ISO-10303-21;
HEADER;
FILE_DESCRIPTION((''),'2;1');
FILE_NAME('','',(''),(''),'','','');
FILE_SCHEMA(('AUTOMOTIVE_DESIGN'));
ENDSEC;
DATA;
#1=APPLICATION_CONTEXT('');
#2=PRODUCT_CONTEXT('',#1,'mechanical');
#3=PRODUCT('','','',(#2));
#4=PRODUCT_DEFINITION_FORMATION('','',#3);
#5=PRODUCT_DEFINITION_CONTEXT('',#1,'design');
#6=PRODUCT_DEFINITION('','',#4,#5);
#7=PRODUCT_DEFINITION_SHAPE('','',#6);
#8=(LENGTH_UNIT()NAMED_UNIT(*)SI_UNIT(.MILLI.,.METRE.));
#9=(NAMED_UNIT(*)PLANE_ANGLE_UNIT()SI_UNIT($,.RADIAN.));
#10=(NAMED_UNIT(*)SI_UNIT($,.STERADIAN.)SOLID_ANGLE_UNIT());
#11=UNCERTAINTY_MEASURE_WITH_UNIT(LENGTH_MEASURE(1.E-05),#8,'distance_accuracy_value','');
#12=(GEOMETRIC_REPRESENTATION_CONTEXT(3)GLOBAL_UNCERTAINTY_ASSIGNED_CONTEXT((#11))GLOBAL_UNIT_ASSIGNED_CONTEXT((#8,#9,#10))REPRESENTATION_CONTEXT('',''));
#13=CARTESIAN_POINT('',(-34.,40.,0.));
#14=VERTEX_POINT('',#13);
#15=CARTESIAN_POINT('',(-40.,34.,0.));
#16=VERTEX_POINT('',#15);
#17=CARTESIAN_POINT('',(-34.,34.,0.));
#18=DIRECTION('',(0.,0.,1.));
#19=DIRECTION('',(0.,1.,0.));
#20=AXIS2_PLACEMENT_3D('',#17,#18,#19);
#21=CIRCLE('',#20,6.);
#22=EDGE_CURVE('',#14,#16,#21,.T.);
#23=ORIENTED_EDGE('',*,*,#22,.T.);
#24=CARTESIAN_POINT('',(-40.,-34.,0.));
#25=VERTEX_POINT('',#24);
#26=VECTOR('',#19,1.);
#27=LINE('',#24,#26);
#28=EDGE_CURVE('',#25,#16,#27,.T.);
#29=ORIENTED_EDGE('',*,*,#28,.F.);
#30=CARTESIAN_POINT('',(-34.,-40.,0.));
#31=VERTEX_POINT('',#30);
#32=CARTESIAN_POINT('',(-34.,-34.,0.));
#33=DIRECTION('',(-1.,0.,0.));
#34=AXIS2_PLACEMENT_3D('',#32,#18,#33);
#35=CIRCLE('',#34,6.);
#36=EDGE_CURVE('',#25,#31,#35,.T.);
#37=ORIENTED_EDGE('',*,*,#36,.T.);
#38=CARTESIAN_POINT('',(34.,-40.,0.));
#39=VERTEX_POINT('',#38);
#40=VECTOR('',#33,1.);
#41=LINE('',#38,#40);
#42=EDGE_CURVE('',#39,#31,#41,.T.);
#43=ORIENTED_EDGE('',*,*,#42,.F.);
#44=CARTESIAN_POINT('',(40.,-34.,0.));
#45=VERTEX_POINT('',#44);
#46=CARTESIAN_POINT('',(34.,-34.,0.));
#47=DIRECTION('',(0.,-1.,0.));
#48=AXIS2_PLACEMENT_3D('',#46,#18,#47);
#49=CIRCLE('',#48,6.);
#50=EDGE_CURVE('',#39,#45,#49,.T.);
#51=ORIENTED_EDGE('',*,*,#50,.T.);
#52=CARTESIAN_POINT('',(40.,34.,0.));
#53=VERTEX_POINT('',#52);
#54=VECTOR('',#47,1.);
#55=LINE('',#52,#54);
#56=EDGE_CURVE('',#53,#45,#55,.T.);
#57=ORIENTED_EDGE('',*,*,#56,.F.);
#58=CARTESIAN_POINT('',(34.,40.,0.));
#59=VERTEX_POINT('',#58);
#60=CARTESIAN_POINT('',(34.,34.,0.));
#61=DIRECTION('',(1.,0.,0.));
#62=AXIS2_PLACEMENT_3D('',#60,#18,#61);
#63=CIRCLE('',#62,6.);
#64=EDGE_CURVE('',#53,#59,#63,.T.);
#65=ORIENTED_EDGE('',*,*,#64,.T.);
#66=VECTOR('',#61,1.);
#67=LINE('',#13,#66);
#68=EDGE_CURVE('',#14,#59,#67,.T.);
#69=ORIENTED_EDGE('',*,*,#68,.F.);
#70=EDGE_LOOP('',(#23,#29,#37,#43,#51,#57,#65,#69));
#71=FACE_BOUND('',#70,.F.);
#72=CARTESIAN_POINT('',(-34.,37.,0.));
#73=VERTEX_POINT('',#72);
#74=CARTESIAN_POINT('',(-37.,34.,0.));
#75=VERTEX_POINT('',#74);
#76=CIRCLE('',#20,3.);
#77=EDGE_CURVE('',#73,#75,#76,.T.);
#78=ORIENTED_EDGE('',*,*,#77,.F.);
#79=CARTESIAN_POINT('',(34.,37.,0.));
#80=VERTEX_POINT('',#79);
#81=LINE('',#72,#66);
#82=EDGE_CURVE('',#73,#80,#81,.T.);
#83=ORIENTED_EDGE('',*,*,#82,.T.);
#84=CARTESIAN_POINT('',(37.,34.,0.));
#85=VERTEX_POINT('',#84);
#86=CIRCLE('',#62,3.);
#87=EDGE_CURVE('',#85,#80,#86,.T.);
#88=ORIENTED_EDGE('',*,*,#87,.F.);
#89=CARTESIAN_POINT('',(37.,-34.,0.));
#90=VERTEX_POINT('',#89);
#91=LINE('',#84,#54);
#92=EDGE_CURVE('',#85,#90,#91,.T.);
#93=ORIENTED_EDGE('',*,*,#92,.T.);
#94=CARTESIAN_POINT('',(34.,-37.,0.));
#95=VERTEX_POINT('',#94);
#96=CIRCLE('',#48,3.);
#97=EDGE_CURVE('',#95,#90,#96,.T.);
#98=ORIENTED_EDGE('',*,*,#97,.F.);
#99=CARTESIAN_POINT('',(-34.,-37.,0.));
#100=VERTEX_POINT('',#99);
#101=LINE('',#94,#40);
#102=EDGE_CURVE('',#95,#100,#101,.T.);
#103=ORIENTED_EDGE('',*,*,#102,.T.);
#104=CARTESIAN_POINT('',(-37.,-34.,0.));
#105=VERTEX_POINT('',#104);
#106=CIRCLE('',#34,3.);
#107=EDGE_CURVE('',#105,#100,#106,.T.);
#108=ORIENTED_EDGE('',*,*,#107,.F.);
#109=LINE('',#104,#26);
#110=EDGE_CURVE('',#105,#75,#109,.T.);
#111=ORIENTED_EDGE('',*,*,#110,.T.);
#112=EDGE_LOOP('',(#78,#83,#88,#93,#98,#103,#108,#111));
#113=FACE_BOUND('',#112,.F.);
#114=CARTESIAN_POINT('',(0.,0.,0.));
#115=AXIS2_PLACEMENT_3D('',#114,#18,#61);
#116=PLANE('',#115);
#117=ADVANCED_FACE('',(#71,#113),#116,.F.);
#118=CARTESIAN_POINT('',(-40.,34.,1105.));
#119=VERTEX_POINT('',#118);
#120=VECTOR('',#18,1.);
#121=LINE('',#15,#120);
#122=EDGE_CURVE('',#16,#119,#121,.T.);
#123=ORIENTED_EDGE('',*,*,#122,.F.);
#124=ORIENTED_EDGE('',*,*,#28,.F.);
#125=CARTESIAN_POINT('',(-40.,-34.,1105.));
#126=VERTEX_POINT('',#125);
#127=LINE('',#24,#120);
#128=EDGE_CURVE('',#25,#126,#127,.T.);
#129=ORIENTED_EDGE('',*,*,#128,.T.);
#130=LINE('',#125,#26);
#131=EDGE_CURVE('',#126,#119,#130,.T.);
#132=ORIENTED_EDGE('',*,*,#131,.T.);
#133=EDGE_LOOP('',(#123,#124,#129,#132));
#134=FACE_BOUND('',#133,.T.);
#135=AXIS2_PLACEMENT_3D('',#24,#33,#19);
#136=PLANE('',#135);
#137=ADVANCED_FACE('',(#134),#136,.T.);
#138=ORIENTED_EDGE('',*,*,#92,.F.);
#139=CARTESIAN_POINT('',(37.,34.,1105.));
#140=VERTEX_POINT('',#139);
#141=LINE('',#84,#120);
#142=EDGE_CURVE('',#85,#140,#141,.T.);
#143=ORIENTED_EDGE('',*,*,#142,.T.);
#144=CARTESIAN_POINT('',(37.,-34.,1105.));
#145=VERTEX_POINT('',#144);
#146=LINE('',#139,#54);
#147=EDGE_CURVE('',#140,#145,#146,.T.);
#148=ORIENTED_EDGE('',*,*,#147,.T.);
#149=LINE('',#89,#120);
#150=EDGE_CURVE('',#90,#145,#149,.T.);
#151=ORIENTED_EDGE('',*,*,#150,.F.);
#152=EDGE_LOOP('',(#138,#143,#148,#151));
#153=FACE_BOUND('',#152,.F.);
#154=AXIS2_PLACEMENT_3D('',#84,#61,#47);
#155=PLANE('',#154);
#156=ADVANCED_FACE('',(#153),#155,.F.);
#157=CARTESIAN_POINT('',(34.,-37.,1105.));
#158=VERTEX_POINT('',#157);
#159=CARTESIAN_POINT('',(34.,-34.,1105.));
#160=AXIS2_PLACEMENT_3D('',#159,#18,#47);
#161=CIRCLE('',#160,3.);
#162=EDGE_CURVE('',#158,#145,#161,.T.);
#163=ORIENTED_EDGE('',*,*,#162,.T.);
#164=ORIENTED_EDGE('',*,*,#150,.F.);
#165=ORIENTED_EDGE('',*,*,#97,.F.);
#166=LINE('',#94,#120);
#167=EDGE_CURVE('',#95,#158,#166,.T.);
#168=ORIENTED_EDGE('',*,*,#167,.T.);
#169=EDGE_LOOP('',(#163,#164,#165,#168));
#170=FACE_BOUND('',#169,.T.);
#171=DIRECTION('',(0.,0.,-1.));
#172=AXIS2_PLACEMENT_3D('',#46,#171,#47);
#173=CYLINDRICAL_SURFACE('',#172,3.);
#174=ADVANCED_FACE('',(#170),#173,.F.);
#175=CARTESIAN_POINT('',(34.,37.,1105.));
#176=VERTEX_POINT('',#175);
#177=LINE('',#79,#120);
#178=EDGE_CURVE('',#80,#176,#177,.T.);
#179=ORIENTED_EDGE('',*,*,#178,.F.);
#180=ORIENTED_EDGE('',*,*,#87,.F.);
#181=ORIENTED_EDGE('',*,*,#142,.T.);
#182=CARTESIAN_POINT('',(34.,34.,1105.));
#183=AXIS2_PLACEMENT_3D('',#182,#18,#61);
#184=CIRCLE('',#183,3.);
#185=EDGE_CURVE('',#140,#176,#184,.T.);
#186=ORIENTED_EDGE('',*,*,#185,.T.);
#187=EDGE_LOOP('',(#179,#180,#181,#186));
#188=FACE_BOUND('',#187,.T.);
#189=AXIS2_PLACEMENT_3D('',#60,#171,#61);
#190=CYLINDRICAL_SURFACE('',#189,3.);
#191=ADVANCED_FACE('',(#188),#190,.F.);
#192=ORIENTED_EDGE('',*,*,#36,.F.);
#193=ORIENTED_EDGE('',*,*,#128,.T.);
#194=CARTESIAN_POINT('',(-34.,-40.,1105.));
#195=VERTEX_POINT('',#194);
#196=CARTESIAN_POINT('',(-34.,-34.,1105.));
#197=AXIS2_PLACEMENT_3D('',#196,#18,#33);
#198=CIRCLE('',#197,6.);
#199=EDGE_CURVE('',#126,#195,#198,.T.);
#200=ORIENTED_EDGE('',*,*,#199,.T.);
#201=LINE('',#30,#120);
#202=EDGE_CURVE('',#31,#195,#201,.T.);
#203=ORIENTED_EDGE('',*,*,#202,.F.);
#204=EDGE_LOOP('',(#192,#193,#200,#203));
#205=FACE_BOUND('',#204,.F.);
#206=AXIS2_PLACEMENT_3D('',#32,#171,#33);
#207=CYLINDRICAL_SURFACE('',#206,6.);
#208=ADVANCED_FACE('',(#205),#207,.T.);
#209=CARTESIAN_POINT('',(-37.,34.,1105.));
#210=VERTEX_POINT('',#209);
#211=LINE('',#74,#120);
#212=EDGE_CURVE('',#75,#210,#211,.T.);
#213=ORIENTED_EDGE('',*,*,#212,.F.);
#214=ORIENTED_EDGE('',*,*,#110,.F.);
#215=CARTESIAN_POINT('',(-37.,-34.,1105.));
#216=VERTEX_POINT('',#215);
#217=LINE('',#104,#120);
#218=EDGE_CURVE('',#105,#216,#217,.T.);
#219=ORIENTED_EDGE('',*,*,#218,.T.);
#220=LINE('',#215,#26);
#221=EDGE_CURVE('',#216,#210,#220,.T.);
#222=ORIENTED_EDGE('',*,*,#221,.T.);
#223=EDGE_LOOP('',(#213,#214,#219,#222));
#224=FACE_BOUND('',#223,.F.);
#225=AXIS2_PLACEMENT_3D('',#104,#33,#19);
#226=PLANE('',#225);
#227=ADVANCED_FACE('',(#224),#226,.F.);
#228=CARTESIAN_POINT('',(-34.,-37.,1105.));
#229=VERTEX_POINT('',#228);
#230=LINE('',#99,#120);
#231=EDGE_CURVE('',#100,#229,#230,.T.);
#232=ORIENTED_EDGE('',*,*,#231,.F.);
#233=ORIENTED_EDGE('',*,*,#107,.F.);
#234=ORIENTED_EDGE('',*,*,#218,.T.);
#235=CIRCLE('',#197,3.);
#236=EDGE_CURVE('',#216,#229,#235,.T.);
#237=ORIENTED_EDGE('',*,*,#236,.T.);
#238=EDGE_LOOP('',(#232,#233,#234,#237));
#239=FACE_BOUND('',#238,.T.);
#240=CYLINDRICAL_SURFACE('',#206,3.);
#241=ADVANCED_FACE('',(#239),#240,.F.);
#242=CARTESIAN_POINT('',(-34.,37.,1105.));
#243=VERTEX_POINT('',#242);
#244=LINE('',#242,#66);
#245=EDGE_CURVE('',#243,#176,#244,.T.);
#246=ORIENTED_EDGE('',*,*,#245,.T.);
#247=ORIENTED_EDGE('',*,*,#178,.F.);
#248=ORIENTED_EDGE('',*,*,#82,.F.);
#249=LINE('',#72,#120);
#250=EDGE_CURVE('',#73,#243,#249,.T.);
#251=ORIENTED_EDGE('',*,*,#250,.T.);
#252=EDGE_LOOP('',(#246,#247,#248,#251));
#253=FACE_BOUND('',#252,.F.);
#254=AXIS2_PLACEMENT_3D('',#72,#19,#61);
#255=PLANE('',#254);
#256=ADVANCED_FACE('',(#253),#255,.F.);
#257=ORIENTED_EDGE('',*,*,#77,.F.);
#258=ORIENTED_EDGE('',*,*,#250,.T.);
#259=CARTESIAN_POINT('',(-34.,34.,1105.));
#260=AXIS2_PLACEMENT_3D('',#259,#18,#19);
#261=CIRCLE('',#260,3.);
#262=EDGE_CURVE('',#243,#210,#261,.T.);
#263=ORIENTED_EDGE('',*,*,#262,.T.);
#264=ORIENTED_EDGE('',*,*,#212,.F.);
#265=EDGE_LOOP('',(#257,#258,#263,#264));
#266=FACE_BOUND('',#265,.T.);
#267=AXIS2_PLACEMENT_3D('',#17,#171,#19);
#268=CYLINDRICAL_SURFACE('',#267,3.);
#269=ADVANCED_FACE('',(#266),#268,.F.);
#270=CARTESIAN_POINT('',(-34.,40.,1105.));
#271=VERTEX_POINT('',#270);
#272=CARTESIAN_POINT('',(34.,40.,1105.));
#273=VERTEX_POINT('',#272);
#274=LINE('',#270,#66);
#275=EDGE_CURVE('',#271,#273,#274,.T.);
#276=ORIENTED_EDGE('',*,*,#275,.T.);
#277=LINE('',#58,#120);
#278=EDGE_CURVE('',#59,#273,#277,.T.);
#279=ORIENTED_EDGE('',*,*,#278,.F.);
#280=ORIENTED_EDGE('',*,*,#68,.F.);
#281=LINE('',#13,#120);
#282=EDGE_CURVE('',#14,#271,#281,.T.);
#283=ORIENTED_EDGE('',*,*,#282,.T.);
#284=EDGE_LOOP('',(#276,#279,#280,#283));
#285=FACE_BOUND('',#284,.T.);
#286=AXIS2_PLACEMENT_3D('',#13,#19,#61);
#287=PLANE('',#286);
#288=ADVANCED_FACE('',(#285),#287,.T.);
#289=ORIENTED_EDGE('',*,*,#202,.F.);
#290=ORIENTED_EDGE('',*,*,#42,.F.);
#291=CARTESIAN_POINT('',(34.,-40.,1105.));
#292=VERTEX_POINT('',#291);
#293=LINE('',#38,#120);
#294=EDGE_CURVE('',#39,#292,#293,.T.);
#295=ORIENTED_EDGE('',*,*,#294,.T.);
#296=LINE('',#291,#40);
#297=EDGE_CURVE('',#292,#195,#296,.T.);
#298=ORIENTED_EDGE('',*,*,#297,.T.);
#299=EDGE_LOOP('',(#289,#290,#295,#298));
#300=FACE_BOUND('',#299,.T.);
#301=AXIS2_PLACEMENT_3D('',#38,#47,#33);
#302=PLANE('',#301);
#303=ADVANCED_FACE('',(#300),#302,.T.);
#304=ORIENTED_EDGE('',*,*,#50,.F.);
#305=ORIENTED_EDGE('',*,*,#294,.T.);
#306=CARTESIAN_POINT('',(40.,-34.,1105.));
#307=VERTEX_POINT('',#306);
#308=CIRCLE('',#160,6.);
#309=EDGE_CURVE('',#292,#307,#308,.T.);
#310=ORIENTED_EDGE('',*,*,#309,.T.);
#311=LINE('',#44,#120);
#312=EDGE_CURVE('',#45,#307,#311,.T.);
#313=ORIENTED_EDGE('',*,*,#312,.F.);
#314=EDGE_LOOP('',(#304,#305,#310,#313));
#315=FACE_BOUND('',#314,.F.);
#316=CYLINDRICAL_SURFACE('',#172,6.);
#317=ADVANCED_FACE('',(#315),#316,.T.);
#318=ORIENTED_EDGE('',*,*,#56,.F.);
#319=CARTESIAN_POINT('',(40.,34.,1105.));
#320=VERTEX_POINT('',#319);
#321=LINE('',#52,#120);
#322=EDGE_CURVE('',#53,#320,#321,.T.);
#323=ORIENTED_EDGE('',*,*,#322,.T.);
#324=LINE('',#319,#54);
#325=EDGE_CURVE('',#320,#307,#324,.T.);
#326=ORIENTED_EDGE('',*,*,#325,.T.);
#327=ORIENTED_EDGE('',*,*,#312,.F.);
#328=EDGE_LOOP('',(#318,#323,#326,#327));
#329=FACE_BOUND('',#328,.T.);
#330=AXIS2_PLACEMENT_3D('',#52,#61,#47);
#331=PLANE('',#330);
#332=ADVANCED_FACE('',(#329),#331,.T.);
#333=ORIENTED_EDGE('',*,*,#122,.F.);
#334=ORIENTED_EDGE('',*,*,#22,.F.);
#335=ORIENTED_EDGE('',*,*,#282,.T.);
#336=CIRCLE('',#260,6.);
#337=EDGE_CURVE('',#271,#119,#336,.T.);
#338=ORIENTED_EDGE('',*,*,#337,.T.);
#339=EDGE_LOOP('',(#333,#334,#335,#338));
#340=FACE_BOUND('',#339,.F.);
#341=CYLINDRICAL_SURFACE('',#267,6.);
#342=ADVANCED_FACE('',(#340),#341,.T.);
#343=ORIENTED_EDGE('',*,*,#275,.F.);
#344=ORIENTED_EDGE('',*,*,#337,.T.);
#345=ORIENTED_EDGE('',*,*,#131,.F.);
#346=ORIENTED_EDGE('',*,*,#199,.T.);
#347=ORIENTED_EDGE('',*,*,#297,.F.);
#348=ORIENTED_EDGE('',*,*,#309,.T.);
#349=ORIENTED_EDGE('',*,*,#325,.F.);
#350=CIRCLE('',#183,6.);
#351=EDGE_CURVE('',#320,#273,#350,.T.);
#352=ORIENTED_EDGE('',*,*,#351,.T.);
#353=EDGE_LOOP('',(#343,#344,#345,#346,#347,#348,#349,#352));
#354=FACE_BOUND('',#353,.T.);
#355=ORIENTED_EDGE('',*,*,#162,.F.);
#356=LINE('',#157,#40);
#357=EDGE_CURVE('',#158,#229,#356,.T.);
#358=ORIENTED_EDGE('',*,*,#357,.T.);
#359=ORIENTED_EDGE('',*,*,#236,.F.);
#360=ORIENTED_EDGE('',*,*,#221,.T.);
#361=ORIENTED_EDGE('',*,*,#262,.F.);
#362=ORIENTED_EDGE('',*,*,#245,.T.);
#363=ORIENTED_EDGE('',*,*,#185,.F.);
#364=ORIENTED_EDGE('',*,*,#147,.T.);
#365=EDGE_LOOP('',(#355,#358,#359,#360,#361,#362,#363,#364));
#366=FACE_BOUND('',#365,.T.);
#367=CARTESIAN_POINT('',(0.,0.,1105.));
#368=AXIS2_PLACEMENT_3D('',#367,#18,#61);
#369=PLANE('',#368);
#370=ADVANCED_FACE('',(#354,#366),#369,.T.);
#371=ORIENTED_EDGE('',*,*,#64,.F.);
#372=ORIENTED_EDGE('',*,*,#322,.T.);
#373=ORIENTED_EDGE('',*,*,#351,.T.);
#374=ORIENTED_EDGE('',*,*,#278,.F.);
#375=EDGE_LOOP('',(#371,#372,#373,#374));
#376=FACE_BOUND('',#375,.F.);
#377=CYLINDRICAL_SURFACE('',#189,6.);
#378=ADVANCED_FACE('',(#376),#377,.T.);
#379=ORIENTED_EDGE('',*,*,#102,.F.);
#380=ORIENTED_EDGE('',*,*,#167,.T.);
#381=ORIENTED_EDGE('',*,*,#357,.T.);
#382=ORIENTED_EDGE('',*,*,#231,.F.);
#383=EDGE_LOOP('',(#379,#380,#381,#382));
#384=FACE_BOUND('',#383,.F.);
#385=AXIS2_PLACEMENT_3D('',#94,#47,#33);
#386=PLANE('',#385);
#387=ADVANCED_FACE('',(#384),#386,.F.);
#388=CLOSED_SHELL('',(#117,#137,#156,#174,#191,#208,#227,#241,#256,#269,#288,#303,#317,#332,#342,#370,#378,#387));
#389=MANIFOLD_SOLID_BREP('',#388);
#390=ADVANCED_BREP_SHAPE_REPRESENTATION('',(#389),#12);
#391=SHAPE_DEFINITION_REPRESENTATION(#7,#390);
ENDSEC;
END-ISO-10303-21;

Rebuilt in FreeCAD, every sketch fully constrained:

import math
import FreeCAD as App
import Part
import Sketcher

V = App.Vector

doc = App.newDocument("Part")
params = doc.addObject("Spreadsheet::Sheet", "Params")
for row, (alias, value) in enumerate([
    ("sketch1_radius", "6 mm"),
    ("sketch1_radius2", "3 mm"),
    ("pad1_length", "1105 mm"),
], start=1):
    params.set(f"A{row}", alias)
    params.set(f"B{row}", "=" + value)
    params.setAlias(f"B{row}", alias)

body = doc.addObject("PartDesign::Body", "Body")

# Sketch on XY plane
sketch1 = doc.addObject("Sketcher::SketchObject", "Sketch")
body.addObject(sketch1)
sketch1.AttachmentSupport = (doc.XY_Plane, [""])
sketch1.MapMode = "FlatFace"
sketch1.addGeometry([
    Part.LineSegment(V(-40, 34, 0), V(-40, -34, 0)),  # 0
    Part.ArcOfCircle(Part.Circle(V(-34, -34, 0), V(0, 0, 1), 6), math.radians(180), math.radians(270)),  # 1
    Part.LineSegment(V(-34, -40, 0), V(34, -40, 0)),  # 2
    Part.ArcOfCircle(Part.Circle(V(34, -34, 0), V(0, 0, 1), 6), math.radians(-90), math.radians(0)),  # 3
    Part.LineSegment(V(40, -34, 0), V(40, 34, 0)),  # 4
    Part.ArcOfCircle(Part.Circle(V(34, 34, 0), V(0, 0, 1), 6), math.radians(0), math.radians(90)),  # 5
    Part.LineSegment(V(34, 40, 0), V(-34, 40, 0)),  # 6
    Part.ArcOfCircle(Part.Circle(V(-34, 34, 0), V(0, 0, 1), 6), math.radians(90), math.radians(180)),  # 7
    Part.ArcOfCircle(Part.Circle(V(-34, 34, 0), V(0, 0, 1), 3), math.radians(90), math.radians(180)),  # 8
    Part.LineSegment(V(-34, 37, 0), V(34, 37, 0)),  # 9
    Part.ArcOfCircle(Part.Circle(V(34, 34, 0), V(0, 0, 1), 3), math.radians(0), math.radians(90)),  # 10
    Part.LineSegment(V(37, 34, 0), V(37, -34, 0)),  # 11
    Part.ArcOfCircle(Part.Circle(V(34, -34, 0), V(0, 0, 1), 3), math.radians(-90), math.radians(0)),  # 12
    Part.LineSegment(V(34, -37, 0), V(-34, -37, 0)),  # 13
    Part.ArcOfCircle(Part.Circle(V(-34, -34, 0), V(0, 0, 1), 3), math.radians(180), math.radians(270)),  # 14
    Part.LineSegment(V(-37, -34, 0), V(-37, 34, 0)),  # 15
], False)
sketch1.addConstraint([
    Sketcher.Constraint("Tangent", 0, 2, 1, 1),
    Sketcher.Constraint("Tangent", 1, 2, 2, 1),
    Sketcher.Constraint("Tangent", 2, 2, 3, 1),
    Sketcher.Constraint("Tangent", 3, 2, 4, 1),
    Sketcher.Constraint("Tangent", 4, 2, 5, 1),
    Sketcher.Constraint("Tangent", 5, 2, 6, 1),
    Sketcher.Constraint("Tangent", 6, 2, 7, 1),
    Sketcher.Constraint("Tangent", 7, 2, 0, 1),
    Sketcher.Constraint("Tangent", 8, 1, 9, 1),
    Sketcher.Constraint("Tangent", 9, 2, 10, 2),
    Sketcher.Constraint("Tangent", 10, 1, 11, 1),
    Sketcher.Constraint("Tangent", 11, 2, 12, 2),
    Sketcher.Constraint("Tangent", 12, 1, 13, 1),
    Sketcher.Constraint("Tangent", 13, 2, 14, 2),
    Sketcher.Constraint("Tangent", 14, 1, 15, 1),
    Sketcher.Constraint("Tangent", 15, 2, 8, 2),
    Sketcher.Constraint("Vertical", 0),
    Sketcher.Constraint("Horizontal", 2),
    Sketcher.Constraint("Vertical", 4),
    Sketcher.Constraint("Horizontal", 6),
    Sketcher.Constraint("Horizontal", 9),
    Sketcher.Constraint("Vertical", 11),
    Sketcher.Constraint("Horizontal", 13),
    Sketcher.Constraint("Vertical", 15),
    Sketcher.Constraint("Coincident", 8, 3, 7, 3),
    Sketcher.Constraint("Coincident", 10, 3, 5, 3),
    Sketcher.Constraint("Coincident", 12, 3, 3, 3),
    Sketcher.Constraint("Equal", 1, 3),
    Sketcher.Constraint("Equal", 3, 5),
    Sketcher.Constraint("Equal", 5, 7),
    Sketcher.Constraint("Equal", 12, 14),
    Sketcher.Constraint("Symmetric", 1, 3, 5, 3, -1, 1),
    Sketcher.Constraint("Equal", 13, 0),
    Sketcher.Constraint("Radius", 1, 6.0),
    Sketcher.Constraint("Radius", 8, 3.0),
    Sketcher.Constraint("DistanceX", 0, 2, -1, 1, 40.0),
])
sketch1.setExpression("Constraints[33]", "Params.sketch1_radius")
sketch1.setExpression("Constraints[34]", "Params.sketch1_radius2")
pad1 = doc.addObject("PartDesign::Pad", "Pad")
body.addObject(pad1)
pad1.Profile = sketch1
pad1.setExpression("Length", "Params.pad1_length")

doc.recompute()
